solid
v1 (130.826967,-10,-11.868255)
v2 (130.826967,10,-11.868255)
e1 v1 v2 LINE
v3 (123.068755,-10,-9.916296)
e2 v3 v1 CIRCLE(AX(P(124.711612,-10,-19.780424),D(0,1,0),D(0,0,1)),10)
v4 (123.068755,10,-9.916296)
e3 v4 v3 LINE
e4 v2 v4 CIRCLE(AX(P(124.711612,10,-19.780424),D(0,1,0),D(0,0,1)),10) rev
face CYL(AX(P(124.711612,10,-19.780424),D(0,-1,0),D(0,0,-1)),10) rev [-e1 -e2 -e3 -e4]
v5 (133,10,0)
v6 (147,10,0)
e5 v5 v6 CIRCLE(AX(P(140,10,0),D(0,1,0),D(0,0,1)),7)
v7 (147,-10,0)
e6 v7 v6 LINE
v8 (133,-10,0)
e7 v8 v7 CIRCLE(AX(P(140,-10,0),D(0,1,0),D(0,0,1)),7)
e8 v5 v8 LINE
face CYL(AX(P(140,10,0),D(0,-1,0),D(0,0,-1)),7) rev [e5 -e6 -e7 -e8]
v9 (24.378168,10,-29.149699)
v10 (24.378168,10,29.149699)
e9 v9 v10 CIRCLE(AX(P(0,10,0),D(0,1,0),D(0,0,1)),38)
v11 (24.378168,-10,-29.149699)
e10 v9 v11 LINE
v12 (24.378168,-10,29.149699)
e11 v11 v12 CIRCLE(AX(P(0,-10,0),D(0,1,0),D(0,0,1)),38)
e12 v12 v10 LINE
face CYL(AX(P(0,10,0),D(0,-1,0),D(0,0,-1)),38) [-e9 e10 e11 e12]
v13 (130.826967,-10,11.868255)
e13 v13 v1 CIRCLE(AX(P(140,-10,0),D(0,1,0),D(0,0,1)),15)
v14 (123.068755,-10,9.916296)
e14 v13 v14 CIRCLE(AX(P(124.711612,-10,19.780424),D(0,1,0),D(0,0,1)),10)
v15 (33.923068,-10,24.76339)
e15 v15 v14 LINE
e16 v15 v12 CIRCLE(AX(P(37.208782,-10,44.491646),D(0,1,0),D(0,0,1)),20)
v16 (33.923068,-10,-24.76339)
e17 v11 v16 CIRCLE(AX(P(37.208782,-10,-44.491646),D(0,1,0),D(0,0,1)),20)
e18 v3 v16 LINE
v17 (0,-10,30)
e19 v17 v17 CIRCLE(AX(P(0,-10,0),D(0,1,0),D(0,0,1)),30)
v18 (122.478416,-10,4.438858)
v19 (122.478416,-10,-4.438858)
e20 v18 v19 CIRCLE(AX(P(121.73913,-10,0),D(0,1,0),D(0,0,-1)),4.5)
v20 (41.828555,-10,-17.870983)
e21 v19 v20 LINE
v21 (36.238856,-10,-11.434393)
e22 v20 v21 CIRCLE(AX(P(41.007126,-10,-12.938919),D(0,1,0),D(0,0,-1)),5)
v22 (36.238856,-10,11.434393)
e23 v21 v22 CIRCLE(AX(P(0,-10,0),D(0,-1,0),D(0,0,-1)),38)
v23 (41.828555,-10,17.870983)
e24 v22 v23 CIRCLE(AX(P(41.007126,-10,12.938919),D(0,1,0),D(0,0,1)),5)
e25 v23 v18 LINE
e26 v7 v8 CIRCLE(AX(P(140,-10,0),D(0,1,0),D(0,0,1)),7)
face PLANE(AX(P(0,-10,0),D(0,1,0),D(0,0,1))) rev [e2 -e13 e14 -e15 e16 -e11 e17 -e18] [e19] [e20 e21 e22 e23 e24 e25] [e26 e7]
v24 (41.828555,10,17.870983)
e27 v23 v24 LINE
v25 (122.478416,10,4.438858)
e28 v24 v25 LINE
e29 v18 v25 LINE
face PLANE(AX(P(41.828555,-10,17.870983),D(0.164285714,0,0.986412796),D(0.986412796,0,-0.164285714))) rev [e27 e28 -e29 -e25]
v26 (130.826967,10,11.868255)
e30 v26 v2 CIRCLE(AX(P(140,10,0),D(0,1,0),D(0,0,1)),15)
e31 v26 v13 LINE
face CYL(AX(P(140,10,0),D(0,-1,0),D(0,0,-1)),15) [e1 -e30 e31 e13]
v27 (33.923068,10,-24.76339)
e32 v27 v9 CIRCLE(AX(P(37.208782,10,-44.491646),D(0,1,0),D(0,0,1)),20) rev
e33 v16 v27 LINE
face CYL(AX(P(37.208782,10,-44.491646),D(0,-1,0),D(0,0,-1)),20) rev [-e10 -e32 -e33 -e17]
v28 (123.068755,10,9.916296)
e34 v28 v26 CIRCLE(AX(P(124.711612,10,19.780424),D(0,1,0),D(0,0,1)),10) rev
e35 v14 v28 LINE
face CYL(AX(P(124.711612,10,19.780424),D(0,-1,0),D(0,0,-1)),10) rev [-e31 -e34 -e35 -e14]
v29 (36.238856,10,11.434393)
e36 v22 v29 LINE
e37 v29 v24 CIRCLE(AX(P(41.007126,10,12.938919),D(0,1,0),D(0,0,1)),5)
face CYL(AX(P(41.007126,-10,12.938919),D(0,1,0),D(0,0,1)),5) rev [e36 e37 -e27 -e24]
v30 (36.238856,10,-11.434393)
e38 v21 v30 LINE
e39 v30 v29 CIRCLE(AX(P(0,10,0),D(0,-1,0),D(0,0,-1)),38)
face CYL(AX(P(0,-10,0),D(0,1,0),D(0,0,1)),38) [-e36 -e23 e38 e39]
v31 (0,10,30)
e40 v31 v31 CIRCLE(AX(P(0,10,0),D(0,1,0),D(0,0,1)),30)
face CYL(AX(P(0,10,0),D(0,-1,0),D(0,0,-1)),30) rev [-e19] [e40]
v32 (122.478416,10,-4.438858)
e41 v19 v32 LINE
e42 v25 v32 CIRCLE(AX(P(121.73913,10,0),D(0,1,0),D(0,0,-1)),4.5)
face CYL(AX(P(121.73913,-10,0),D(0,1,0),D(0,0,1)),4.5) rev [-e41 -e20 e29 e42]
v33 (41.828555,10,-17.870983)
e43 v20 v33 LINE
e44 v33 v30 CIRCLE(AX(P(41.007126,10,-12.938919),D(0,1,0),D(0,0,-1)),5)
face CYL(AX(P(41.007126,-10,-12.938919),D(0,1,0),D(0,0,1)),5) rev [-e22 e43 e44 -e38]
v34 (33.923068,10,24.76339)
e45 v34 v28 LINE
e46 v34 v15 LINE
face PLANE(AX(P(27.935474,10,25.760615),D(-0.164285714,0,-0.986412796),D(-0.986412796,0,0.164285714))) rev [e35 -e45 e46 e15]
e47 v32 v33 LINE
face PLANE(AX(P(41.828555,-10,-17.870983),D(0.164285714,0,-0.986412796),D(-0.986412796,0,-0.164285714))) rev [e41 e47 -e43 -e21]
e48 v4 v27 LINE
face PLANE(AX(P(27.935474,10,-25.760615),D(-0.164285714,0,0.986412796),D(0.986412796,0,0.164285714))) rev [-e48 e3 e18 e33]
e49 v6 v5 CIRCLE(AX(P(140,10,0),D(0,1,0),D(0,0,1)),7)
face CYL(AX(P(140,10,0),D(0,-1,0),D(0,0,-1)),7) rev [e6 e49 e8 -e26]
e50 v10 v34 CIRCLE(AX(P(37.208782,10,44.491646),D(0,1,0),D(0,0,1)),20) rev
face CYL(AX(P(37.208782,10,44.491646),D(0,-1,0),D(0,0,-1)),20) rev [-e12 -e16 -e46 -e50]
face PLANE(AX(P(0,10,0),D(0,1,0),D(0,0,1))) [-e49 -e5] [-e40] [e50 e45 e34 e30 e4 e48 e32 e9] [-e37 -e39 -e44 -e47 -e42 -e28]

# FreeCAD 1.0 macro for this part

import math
import FreeCAD as App
import Part
import Sketcher
Q = App.Units.Quantity


def edges_at(feature, points):
    """Names of the edges that pass closest to the given points."""
    edges = feature.Shape.Edges
    near = lambda p: min(range(len(edges)), key=lambda i: edges[i].distToShape(Part.Vertex(*p))[0])
    return sorted({f"Edge{near(p) + 1}" for p in points})

doc = App.newDocument("Part")
body = doc.addObject("PartDesign::Body", "Body")

sketch1 = body.newObject("Sketcher::SketchObject", "Sketch")
sketch1.AttachmentSupport = (doc.getObject("XZ_Plane"), [""])
sketch1.MapMode = "FlatFace"
sketch1.addGeometry([
    Part.LineSegment(App.Vector(128.063755, -9.084386, 0), App.Vector(27.935474, -25.760615, 0)),
    Part.ArcOfCircle(Part.Circle(App.Vector(0, 0, 0), App.Vector(0, 0, 1), 38), math.radians(42.680611), math.radians(317.319389)),
    Part.LineSegment(App.Vector(27.935474, 25.760615, 0), App.Vector(128.063755, 9.084386, 0)),
    Part.ArcOfCircle(Part.Circle(App.Vector(140, 0, 0), App.Vector(0, 0, 1), 15), math.radians(-142.726118), math.radians(142.726118)),
    Part.Circle(App.Vector(140, 0, 0), App.Vector(0, 0, 1), 7),
    Part.Circle(App.Vector(0, 0, 0), App.Vector(0, 0, 1), 30),
], False)
sketch1.addConstraint([
    Sketcher.Constraint("Coincident", 0, 2, 1, 2),
    Sketcher.Constraint("Coincident", 1, 1, 2, 1),
    Sketcher.Constraint("Coincident", 2, 2, 3, 2),
    Sketcher.Constraint("Coincident", 3, 1, 0, 1),
    Sketcher.Constraint("Coincident", 1, 3, -1, 1),
    Sketcher.Constraint("Coincident", 5, 3, -1, 1),
    Sketcher.Constraint("Coincident", 4, 3, 3, 3),
    Sketcher.Constraint("Symmetric", 2, 2, 3, 1, -1),
    Sketcher.Constraint("Vertical", 0, 2, 1, 1),
    Sketcher.Constraint("Diameter", 4, Q("14 mm")),
    Sketcher.Constraint("Diameter", 5, Q("60 mm")),
    Sketcher.Constraint("Radius", 1, Q("38 mm")),
    Sketcher.Constraint("Radius", 3, Q("15 mm")),
    Sketcher.Constraint("DistanceX", -1, 1, 3, 3, Q("140 mm")),
    Sketcher.Constraint("DistanceY", 0, 2, 2, 2, Q("34.845001 mm")),
    Sketcher.Constraint("DistanceY", 0, 2, 1, 1, Q("51.521231 mm")),
])
pad1 = body.newObject("PartDesign::Pad", "Pad")
pad1.Profile = sketch1
pad1.Length = 20
pad1.Midplane = True
doc.recompute()

fillet = body.newObject("PartDesign::Fillet", "Fillet")
fillet.Base = (pad1, edges_at(pad1, [(27.935, 0, -25.761), (27.935, 0, 25.761)]))
fillet.Radius = 20
doc.recompute()

fillet2 = body.newObject("PartDesign::Fillet", "Fillet001")
fillet2.Base = (fillet, edges_at(fillet, [(128.064, 0, -9.084), (128.064, 0, 9.084)]))
fillet2.Radius = 10

sketch2 = body.newObject("Sketcher::SketchObject", "Sketch001")
sketch2.AttachmentSupport = (doc.getObject("XZ_Plane"), [""])
sketch2.MapMode = "FlatFace"
sketch2.AttachmentOffset = App.Placement(App.Vector(0, 0, -10), App.Rotation())
sketch2.addGeometry([
    Part.LineSegment(App.Vector(122.478416, -4.438858, 0), App.Vector(41.828555, -17.870983, 0)),
    Part.ArcOfCircle(Part.Circle(App.Vector(41.007126, -12.938919, 0), App.Vector(0, 0, 1), 5), math.radians(162.488027), math.radians(279.455743)),
    Part.ArcOfCircle(Part.Circle(App.Vector(0, 0, 0), App.Vector(0, 0, 1), 38), math.radians(-17.511973), math.radians(17.511973)),
    Part.ArcOfCircle(Part.Circle(App.Vector(41.007126, 12.938919, 0), App.Vector(0, 0, 1), 5), math.radians(80.544257), math.radians(197.511973)),
    Part.LineSegment(App.Vector(41.828555, 17.870983, 0), App.Vector(122.478416, 4.438858, 0)),
    Part.ArcOfCircle(Part.Circle(App.Vector(121.73913, 0, 0), App.Vector(0, 0, 1), 4.5), math.radians(-80.544257), math.radians(80.544257)),
], False)
sketch2.addConstraint([
    Sketcher.Constraint("Tangent", 0, 2, 1, 2),
    Sketcher.Constraint("Tangent", 1, 1, 2, 1),
    Sketcher.Constraint("Tangent", 2, 2, 3, 2),
    Sketcher.Constraint("Tangent", 3, 1, 4, 1),
    Sketcher.Constraint("Tangent", 4, 2, 5, 2),
    Sketcher.Constraint("Tangent", 5, 1, 0, 1),
    Sketcher.Constraint("Coincident", 2, 3, -1, 1),
    Sketcher.Constraint("Equal", 1, 3),
    Sketcher.Constraint("Symmetric", 0, 2, 3, 1, -1),
    Sketcher.Constraint("Radius", 1, Q("5 mm")),
    Sketcher.Constraint("Radius", 2, Q("38 mm")),
    Sketcher.Constraint("Radius", 5, Q("4.5 mm")),
    Sketcher.Constraint("DistanceY", 0, 2, 3, 3, Q("30.809901 mm")),
    Sketcher.Constraint("DistanceX", 1, 1, 0, 2, Q("5.589699 mm")),
])
pocket1 = body.newObject("PartDesign::Pocket", "Pocket")
pocket1.Profile = sketch2
pocket1.Type = "ThroughAll"
pocket1.Reversed = True

doc.recompute()
